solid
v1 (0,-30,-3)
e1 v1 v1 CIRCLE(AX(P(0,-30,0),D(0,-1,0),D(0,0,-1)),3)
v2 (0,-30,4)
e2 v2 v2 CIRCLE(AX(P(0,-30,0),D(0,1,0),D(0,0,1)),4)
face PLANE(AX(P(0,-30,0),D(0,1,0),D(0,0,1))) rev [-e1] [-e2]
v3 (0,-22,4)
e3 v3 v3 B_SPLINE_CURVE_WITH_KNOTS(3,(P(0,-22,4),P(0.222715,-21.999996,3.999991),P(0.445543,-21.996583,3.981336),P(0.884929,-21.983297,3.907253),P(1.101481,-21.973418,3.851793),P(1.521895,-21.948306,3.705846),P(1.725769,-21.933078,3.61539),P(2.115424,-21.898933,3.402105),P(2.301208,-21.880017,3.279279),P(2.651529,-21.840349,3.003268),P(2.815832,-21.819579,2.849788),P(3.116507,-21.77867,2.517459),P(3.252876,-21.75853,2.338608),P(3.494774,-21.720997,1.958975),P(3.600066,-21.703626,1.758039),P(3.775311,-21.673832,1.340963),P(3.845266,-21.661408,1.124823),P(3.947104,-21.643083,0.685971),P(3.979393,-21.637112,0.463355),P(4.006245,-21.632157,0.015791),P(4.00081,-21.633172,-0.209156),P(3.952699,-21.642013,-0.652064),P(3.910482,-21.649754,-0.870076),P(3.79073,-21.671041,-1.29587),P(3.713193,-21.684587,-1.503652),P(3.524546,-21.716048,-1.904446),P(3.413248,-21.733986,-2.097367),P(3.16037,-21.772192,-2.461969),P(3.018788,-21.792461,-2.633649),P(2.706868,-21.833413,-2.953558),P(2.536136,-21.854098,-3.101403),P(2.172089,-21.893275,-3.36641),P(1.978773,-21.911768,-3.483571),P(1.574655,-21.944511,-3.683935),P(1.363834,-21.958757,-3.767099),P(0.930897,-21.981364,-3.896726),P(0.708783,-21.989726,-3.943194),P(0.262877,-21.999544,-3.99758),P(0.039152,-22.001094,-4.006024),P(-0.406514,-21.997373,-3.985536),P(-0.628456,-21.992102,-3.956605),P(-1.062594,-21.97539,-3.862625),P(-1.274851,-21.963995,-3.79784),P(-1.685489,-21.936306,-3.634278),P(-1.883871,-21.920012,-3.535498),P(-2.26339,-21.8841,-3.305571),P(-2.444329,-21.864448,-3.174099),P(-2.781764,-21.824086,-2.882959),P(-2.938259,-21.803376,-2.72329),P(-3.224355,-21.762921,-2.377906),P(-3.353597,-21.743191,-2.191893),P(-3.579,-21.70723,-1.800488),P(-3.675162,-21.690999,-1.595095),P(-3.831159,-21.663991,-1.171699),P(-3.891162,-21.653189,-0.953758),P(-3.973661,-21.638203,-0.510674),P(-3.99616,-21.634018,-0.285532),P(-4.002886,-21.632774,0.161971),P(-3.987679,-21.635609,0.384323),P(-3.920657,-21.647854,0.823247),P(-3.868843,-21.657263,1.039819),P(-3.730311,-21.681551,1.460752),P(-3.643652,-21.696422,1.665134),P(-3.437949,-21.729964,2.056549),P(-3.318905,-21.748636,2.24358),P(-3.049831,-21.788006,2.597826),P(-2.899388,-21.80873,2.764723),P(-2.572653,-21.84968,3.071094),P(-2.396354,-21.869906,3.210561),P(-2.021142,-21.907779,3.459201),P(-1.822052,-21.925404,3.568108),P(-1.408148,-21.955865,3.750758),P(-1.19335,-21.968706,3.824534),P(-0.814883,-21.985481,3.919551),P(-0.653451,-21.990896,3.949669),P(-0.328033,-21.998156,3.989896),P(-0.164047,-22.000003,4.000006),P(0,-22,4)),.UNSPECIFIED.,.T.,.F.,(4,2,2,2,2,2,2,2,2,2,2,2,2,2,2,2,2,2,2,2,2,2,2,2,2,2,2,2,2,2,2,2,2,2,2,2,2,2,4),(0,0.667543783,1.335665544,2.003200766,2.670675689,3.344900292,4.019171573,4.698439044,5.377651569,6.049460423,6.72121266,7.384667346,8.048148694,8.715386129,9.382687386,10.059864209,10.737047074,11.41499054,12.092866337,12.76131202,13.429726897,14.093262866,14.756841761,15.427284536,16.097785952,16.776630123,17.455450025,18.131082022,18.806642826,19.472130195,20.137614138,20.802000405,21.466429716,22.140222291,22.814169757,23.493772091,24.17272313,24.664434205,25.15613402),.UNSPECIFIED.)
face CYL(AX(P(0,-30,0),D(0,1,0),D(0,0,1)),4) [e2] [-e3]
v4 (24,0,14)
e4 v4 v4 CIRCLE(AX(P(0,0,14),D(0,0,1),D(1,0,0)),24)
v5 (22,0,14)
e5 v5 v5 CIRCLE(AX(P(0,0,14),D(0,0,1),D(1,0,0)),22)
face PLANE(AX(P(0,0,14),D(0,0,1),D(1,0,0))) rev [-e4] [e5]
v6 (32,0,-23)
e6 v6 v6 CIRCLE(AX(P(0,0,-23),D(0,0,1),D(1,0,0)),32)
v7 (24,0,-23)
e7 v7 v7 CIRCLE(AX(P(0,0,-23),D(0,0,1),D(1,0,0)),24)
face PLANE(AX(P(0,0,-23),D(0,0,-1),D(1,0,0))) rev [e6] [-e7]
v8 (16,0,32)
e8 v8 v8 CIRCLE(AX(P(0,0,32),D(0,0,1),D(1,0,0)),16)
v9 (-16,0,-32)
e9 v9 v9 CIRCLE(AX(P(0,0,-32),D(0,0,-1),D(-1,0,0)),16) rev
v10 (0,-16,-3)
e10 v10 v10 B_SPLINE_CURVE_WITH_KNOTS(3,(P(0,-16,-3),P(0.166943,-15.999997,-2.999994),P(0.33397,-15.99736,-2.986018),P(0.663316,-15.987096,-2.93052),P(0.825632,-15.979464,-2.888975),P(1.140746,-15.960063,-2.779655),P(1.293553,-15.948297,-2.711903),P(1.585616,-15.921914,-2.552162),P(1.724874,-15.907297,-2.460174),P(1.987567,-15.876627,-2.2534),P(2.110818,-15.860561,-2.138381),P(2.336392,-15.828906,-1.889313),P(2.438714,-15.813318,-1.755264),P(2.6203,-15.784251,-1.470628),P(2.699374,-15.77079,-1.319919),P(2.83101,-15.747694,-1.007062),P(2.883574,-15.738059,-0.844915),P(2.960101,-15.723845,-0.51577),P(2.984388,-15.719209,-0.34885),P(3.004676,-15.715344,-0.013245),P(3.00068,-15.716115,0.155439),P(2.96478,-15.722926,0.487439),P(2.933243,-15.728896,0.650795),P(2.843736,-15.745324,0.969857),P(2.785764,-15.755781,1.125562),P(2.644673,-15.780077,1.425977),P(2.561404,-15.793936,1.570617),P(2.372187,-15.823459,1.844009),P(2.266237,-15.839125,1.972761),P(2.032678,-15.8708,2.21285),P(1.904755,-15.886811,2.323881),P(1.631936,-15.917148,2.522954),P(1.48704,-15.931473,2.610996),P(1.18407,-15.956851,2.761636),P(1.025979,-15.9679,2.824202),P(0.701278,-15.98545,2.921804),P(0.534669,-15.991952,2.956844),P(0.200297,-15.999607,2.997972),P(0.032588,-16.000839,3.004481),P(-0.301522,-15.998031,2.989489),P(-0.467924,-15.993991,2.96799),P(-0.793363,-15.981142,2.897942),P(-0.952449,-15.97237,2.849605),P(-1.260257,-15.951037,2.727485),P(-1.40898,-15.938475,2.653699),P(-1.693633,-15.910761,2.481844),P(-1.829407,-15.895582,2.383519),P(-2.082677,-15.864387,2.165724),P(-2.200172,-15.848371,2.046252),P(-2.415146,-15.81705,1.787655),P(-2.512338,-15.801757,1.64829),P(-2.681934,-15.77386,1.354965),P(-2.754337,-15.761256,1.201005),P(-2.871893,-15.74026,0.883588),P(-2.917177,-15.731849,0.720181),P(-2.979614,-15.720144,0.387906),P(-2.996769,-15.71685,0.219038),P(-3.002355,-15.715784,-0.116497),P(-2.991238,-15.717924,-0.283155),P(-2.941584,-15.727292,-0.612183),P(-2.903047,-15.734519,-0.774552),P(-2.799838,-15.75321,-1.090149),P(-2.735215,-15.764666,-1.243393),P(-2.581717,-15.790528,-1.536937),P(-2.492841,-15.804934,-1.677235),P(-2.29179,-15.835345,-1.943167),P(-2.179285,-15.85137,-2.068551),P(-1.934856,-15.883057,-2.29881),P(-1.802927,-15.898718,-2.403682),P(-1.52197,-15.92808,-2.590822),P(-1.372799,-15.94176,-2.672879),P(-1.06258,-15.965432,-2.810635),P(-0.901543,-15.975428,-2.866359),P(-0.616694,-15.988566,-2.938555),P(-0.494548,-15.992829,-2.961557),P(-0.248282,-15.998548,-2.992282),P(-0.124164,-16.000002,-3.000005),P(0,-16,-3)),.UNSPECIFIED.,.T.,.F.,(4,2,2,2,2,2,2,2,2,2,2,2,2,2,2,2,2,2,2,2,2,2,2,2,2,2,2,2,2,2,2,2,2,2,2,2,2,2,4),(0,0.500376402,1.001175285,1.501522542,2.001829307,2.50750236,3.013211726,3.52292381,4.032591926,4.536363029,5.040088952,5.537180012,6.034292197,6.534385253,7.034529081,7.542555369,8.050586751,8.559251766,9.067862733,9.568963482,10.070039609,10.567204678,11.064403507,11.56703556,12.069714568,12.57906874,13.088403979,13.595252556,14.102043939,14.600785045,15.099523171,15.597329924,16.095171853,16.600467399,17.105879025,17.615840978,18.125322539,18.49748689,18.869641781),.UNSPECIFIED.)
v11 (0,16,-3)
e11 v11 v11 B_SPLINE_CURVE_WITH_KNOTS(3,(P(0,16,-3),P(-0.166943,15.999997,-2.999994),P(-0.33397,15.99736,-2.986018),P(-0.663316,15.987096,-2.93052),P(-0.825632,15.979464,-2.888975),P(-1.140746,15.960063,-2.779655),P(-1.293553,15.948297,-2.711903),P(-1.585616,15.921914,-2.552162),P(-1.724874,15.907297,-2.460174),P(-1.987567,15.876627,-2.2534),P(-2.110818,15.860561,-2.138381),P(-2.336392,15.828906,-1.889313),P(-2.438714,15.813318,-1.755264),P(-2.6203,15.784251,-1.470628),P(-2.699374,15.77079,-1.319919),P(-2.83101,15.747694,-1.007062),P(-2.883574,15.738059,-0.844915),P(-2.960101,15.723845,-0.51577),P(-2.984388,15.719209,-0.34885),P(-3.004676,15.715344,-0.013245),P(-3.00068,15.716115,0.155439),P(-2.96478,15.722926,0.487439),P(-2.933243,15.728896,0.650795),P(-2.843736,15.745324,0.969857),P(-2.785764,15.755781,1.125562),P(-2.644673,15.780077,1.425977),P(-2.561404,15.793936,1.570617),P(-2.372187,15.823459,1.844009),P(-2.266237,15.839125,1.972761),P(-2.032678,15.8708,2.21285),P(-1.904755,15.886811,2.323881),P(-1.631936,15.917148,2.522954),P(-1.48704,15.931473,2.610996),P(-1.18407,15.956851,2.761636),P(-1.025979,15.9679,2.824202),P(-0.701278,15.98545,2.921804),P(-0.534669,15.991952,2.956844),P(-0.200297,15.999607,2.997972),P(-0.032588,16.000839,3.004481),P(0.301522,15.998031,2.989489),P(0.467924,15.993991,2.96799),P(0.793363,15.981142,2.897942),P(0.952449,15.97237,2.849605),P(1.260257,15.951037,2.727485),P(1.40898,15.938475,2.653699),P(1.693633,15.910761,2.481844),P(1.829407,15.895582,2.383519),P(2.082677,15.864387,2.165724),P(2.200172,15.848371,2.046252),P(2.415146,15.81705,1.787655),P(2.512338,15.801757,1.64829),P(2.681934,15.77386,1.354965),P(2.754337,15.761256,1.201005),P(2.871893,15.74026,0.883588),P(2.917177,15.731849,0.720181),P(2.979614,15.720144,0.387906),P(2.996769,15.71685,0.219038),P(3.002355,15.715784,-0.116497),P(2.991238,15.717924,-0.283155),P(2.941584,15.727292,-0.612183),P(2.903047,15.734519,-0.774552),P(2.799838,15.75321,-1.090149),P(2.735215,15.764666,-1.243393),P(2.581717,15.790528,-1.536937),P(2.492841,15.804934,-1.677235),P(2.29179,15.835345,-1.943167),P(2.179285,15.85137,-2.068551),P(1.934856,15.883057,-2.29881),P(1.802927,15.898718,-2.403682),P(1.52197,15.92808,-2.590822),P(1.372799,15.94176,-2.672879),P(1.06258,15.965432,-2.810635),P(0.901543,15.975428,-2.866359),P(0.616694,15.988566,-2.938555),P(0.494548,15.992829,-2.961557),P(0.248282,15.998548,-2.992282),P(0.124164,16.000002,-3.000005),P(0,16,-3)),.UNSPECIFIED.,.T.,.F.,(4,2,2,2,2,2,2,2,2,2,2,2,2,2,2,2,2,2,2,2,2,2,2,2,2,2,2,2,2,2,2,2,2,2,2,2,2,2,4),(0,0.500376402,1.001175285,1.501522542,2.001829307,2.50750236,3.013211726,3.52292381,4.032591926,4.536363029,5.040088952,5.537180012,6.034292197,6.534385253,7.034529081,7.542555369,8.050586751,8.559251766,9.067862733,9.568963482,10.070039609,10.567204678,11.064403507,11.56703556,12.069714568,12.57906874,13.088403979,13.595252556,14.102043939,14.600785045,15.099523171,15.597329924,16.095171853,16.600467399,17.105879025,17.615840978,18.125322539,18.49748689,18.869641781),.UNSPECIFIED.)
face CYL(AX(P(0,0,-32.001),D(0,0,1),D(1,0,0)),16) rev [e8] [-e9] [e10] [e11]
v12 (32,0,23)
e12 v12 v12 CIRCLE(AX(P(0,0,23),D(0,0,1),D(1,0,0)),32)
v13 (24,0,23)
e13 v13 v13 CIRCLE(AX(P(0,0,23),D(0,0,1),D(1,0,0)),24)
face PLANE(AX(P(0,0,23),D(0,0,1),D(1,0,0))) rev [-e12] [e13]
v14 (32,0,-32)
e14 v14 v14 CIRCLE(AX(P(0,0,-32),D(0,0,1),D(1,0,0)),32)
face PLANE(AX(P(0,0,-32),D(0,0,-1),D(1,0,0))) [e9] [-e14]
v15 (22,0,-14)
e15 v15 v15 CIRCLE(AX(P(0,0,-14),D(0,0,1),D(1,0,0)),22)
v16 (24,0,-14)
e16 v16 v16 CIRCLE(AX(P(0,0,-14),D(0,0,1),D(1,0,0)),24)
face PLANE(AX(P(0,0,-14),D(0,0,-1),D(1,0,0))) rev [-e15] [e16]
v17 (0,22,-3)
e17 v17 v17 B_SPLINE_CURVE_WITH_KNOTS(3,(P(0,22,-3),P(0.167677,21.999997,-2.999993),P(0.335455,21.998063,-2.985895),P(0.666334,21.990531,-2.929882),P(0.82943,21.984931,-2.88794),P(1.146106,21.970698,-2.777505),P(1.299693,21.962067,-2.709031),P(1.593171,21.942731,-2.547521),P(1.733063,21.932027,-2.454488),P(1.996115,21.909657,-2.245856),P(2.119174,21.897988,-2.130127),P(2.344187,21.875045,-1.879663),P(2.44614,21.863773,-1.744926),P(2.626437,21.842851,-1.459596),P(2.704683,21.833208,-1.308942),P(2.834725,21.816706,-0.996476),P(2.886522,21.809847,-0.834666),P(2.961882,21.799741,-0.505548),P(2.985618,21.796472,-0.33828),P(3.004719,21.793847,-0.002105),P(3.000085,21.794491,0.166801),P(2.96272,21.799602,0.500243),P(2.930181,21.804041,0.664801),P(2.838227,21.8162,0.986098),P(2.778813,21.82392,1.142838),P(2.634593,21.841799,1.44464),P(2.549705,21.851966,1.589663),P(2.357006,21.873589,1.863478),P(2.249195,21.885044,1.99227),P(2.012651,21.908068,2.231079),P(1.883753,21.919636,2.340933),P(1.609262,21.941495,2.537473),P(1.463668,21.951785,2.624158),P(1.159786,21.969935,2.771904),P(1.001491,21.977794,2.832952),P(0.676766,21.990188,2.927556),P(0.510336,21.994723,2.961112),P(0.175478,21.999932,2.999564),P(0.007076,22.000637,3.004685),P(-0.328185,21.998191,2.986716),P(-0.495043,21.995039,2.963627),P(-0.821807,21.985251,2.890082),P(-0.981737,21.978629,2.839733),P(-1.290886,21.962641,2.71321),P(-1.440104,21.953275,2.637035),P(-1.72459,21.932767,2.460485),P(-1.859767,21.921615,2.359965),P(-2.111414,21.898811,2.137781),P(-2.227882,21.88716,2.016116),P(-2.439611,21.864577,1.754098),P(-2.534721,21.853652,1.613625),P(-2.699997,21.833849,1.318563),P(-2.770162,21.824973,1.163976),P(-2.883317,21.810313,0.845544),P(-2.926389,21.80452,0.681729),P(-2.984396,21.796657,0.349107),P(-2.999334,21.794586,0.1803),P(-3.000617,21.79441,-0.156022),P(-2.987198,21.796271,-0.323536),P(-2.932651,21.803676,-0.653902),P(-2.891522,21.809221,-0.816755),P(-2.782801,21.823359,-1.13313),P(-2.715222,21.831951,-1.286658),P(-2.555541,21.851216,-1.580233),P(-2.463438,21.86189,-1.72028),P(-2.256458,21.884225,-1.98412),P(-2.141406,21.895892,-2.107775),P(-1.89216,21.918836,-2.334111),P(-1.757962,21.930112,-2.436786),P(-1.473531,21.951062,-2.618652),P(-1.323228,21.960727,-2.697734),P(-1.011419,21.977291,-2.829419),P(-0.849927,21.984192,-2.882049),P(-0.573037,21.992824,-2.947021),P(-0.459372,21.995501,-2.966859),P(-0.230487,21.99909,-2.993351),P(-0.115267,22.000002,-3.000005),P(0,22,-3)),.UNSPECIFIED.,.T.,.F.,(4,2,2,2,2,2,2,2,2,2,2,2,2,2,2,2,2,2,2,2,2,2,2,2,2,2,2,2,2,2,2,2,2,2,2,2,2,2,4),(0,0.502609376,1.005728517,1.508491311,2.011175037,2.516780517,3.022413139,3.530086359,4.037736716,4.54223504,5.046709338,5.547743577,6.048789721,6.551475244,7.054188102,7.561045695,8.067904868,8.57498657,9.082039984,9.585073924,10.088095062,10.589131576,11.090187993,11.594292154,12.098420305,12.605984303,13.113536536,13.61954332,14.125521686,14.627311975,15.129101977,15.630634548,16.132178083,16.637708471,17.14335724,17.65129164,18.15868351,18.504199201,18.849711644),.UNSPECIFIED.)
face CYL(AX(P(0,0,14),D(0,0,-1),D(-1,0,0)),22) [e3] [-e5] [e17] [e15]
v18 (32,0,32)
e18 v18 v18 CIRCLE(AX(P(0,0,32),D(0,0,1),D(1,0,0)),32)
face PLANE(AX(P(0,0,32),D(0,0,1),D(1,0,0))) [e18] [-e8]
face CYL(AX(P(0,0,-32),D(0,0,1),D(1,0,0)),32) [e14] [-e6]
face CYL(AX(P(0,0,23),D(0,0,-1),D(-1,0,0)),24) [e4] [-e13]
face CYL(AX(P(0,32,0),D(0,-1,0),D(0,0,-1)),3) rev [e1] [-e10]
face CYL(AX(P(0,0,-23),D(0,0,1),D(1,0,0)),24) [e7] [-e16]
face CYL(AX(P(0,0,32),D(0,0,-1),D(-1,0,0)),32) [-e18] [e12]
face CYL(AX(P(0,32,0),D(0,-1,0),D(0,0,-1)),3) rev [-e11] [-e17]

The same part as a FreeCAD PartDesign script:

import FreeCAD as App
import Part
import Sketcher

doc = App.newDocument("Part")
body = doc.addObject("PartDesign::Body", "Body")

sketch1 = body.newObject("Sketcher::SketchObject", "Sketch")
sketch1.AttachmentSupport = (doc.getObject("XY_Plane"), [""])
sketch1.MapMode = "FlatFace"
sketch1.addGeometry(Part.Circle(App.Vector(0, 0, 0), App.Vector(0, 0, 1), 22), False)
sketch1.addConstraint([
    Sketcher.Constraint("Coincident", 0, 3, -1, 1),
    Sketcher.Constraint("Diameter", 0, 44.0),
])
pad1 = body.newObject("PartDesign::Pad", "Pad")
pad1.Profile = sketch1
pad1.Length = 28
pad1.Midplane = True

sketch2 = body.newObject("Sketcher::SketchObject", "Sketch001")
sketch2.AttachmentSupport = (doc.getObject("XY_Plane"), [""])
sketch2.MapMode = "FlatFace"
sketch2.AttachmentOffset = App.Placement(App.Vector(0, 0, 14), App.Rotation())
sketch2.addGeometry(Part.Circle(App.Vector(0, 0, 0), App.Vector(0, 0, 1), 24), False)
sketch2.addConstraint([
    Sketcher.Constraint("Coincident", 0, 3, -1, 1),
    Sketcher.Constraint("Diameter", 0, 48.0),
])
pad2 = body.newObject("PartDesign::Pad", "Pad001")
pad2.Profile = sketch2
pad2.Length = 9
doc.recompute()

mirrored = body.newObject("PartDesign::Mirrored", "Mirrored")
mirrored.Originals = [pad2]
mirrored.MirrorPlane = (doc.getObject("XY_Plane"), [""])
body.Tip = mirrored

sketch3 = body.newObject("Sketcher::SketchObject", "Sketch002")
sketch3.AttachmentSupport = (doc.getObject("XY_Plane"), [""])
sketch3.MapMode = "FlatFace"
sketch3.AttachmentOffset = App.Placement(App.Vector(0, 0, 23), App.Rotation())
sketch3.addGeometry(Part.Circle(App.Vector(0, 0, 0), App.Vector(0, 0, 1), 32), False)
sketch3.addConstraint([
    Sketcher.Constraint("Coincident", 0, 3, -1, 1),
    Sketcher.Constraint("Diameter", 0, 64.0),
])
pad3 = body.newObject("PartDesign::Pad", "Pad002")
pad3.Profile = sketch3
pad3.Length = 9
doc.recompute()

mirrored2 = body.newObject("PartDesign::Mirrored", "Mirrored001")
mirrored2.Originals = [pad3]
mirrored2.MirrorPlane = (doc.getObject("XY_Plane"), [""])
body.Tip = mirrored2

sketch4 = body.newObject("Sketcher::SketchObject", "Sketch003")
sketch4.AttachmentSupport = (doc.getObject("XZ_Plane"), [""])
sketch4.MapMode = "FlatFace"
sketch4.addGeometry(Part.Circle(App.Vector(0, 0, 0), App.Vector(0, 0, 1), 4), False)
sketch4.addConstraint([
    Sketcher.Constraint("Coincident", 0, 3, -1, 1),
    Sketcher.Constraint("Diameter", 0, 8.0),
])
pad4 = body.newObject("PartDesign::Pad", "Pad003")
pad4.Profile = sketch4
pad4.Length = 30

sketch5 = body.newObject("Sketcher::SketchObject", "Sketch004")
sketch5.AttachmentSupport = (doc.getObject("XY_Plane"), [""])
sketch5.MapMode = "FlatFace"
sketch5.AttachmentOffset = App.Placement(App.Vector(0, 0, 32), App.Rotation())
sketch5.addGeometry(Part.Circle(App.Vector(0, 0, 0), App.Vector(0, 0, 1), 16), False)
sketch5.addConstraint([
    Sketcher.Constraint("Coincident", 0, 3, -1, 1),
    Sketcher.Constraint("Diameter", 0, 32.0),
])
pocket1 = body.newObject("PartDesign::Pocket", "Pocket")
pocket1.Profile = sketch5
pocket1.Type = "UpToFirst"

sketch6 = body.newObject("Sketcher::SketchObject", "Sketch005")
sketch6.AttachmentSupport = (doc.getObject("XZ_Plane"), [""])
sketch6.MapMode = "FlatFace"
sketch6.AttachmentOffset = App.Placement(App.Vector(0, 0, 30), App.Rotation())
sketch6.addGeometry(Part.Circle(App.Vector(0, 0, 0), App.Vector(0, 0, 1), 3), False)
sketch6.addConstraint([
    Sketcher.Constraint("Coincident", 0, 3, -1, 1),
    Sketcher.Constraint("Diameter", 0, 6.0),
])
pocket2 = body.newObject("PartDesign::Pocket", "Pocket001")
pocket2.Profile = sketch6
pocket2.Type = "ThroughAll"

doc.recompute()
